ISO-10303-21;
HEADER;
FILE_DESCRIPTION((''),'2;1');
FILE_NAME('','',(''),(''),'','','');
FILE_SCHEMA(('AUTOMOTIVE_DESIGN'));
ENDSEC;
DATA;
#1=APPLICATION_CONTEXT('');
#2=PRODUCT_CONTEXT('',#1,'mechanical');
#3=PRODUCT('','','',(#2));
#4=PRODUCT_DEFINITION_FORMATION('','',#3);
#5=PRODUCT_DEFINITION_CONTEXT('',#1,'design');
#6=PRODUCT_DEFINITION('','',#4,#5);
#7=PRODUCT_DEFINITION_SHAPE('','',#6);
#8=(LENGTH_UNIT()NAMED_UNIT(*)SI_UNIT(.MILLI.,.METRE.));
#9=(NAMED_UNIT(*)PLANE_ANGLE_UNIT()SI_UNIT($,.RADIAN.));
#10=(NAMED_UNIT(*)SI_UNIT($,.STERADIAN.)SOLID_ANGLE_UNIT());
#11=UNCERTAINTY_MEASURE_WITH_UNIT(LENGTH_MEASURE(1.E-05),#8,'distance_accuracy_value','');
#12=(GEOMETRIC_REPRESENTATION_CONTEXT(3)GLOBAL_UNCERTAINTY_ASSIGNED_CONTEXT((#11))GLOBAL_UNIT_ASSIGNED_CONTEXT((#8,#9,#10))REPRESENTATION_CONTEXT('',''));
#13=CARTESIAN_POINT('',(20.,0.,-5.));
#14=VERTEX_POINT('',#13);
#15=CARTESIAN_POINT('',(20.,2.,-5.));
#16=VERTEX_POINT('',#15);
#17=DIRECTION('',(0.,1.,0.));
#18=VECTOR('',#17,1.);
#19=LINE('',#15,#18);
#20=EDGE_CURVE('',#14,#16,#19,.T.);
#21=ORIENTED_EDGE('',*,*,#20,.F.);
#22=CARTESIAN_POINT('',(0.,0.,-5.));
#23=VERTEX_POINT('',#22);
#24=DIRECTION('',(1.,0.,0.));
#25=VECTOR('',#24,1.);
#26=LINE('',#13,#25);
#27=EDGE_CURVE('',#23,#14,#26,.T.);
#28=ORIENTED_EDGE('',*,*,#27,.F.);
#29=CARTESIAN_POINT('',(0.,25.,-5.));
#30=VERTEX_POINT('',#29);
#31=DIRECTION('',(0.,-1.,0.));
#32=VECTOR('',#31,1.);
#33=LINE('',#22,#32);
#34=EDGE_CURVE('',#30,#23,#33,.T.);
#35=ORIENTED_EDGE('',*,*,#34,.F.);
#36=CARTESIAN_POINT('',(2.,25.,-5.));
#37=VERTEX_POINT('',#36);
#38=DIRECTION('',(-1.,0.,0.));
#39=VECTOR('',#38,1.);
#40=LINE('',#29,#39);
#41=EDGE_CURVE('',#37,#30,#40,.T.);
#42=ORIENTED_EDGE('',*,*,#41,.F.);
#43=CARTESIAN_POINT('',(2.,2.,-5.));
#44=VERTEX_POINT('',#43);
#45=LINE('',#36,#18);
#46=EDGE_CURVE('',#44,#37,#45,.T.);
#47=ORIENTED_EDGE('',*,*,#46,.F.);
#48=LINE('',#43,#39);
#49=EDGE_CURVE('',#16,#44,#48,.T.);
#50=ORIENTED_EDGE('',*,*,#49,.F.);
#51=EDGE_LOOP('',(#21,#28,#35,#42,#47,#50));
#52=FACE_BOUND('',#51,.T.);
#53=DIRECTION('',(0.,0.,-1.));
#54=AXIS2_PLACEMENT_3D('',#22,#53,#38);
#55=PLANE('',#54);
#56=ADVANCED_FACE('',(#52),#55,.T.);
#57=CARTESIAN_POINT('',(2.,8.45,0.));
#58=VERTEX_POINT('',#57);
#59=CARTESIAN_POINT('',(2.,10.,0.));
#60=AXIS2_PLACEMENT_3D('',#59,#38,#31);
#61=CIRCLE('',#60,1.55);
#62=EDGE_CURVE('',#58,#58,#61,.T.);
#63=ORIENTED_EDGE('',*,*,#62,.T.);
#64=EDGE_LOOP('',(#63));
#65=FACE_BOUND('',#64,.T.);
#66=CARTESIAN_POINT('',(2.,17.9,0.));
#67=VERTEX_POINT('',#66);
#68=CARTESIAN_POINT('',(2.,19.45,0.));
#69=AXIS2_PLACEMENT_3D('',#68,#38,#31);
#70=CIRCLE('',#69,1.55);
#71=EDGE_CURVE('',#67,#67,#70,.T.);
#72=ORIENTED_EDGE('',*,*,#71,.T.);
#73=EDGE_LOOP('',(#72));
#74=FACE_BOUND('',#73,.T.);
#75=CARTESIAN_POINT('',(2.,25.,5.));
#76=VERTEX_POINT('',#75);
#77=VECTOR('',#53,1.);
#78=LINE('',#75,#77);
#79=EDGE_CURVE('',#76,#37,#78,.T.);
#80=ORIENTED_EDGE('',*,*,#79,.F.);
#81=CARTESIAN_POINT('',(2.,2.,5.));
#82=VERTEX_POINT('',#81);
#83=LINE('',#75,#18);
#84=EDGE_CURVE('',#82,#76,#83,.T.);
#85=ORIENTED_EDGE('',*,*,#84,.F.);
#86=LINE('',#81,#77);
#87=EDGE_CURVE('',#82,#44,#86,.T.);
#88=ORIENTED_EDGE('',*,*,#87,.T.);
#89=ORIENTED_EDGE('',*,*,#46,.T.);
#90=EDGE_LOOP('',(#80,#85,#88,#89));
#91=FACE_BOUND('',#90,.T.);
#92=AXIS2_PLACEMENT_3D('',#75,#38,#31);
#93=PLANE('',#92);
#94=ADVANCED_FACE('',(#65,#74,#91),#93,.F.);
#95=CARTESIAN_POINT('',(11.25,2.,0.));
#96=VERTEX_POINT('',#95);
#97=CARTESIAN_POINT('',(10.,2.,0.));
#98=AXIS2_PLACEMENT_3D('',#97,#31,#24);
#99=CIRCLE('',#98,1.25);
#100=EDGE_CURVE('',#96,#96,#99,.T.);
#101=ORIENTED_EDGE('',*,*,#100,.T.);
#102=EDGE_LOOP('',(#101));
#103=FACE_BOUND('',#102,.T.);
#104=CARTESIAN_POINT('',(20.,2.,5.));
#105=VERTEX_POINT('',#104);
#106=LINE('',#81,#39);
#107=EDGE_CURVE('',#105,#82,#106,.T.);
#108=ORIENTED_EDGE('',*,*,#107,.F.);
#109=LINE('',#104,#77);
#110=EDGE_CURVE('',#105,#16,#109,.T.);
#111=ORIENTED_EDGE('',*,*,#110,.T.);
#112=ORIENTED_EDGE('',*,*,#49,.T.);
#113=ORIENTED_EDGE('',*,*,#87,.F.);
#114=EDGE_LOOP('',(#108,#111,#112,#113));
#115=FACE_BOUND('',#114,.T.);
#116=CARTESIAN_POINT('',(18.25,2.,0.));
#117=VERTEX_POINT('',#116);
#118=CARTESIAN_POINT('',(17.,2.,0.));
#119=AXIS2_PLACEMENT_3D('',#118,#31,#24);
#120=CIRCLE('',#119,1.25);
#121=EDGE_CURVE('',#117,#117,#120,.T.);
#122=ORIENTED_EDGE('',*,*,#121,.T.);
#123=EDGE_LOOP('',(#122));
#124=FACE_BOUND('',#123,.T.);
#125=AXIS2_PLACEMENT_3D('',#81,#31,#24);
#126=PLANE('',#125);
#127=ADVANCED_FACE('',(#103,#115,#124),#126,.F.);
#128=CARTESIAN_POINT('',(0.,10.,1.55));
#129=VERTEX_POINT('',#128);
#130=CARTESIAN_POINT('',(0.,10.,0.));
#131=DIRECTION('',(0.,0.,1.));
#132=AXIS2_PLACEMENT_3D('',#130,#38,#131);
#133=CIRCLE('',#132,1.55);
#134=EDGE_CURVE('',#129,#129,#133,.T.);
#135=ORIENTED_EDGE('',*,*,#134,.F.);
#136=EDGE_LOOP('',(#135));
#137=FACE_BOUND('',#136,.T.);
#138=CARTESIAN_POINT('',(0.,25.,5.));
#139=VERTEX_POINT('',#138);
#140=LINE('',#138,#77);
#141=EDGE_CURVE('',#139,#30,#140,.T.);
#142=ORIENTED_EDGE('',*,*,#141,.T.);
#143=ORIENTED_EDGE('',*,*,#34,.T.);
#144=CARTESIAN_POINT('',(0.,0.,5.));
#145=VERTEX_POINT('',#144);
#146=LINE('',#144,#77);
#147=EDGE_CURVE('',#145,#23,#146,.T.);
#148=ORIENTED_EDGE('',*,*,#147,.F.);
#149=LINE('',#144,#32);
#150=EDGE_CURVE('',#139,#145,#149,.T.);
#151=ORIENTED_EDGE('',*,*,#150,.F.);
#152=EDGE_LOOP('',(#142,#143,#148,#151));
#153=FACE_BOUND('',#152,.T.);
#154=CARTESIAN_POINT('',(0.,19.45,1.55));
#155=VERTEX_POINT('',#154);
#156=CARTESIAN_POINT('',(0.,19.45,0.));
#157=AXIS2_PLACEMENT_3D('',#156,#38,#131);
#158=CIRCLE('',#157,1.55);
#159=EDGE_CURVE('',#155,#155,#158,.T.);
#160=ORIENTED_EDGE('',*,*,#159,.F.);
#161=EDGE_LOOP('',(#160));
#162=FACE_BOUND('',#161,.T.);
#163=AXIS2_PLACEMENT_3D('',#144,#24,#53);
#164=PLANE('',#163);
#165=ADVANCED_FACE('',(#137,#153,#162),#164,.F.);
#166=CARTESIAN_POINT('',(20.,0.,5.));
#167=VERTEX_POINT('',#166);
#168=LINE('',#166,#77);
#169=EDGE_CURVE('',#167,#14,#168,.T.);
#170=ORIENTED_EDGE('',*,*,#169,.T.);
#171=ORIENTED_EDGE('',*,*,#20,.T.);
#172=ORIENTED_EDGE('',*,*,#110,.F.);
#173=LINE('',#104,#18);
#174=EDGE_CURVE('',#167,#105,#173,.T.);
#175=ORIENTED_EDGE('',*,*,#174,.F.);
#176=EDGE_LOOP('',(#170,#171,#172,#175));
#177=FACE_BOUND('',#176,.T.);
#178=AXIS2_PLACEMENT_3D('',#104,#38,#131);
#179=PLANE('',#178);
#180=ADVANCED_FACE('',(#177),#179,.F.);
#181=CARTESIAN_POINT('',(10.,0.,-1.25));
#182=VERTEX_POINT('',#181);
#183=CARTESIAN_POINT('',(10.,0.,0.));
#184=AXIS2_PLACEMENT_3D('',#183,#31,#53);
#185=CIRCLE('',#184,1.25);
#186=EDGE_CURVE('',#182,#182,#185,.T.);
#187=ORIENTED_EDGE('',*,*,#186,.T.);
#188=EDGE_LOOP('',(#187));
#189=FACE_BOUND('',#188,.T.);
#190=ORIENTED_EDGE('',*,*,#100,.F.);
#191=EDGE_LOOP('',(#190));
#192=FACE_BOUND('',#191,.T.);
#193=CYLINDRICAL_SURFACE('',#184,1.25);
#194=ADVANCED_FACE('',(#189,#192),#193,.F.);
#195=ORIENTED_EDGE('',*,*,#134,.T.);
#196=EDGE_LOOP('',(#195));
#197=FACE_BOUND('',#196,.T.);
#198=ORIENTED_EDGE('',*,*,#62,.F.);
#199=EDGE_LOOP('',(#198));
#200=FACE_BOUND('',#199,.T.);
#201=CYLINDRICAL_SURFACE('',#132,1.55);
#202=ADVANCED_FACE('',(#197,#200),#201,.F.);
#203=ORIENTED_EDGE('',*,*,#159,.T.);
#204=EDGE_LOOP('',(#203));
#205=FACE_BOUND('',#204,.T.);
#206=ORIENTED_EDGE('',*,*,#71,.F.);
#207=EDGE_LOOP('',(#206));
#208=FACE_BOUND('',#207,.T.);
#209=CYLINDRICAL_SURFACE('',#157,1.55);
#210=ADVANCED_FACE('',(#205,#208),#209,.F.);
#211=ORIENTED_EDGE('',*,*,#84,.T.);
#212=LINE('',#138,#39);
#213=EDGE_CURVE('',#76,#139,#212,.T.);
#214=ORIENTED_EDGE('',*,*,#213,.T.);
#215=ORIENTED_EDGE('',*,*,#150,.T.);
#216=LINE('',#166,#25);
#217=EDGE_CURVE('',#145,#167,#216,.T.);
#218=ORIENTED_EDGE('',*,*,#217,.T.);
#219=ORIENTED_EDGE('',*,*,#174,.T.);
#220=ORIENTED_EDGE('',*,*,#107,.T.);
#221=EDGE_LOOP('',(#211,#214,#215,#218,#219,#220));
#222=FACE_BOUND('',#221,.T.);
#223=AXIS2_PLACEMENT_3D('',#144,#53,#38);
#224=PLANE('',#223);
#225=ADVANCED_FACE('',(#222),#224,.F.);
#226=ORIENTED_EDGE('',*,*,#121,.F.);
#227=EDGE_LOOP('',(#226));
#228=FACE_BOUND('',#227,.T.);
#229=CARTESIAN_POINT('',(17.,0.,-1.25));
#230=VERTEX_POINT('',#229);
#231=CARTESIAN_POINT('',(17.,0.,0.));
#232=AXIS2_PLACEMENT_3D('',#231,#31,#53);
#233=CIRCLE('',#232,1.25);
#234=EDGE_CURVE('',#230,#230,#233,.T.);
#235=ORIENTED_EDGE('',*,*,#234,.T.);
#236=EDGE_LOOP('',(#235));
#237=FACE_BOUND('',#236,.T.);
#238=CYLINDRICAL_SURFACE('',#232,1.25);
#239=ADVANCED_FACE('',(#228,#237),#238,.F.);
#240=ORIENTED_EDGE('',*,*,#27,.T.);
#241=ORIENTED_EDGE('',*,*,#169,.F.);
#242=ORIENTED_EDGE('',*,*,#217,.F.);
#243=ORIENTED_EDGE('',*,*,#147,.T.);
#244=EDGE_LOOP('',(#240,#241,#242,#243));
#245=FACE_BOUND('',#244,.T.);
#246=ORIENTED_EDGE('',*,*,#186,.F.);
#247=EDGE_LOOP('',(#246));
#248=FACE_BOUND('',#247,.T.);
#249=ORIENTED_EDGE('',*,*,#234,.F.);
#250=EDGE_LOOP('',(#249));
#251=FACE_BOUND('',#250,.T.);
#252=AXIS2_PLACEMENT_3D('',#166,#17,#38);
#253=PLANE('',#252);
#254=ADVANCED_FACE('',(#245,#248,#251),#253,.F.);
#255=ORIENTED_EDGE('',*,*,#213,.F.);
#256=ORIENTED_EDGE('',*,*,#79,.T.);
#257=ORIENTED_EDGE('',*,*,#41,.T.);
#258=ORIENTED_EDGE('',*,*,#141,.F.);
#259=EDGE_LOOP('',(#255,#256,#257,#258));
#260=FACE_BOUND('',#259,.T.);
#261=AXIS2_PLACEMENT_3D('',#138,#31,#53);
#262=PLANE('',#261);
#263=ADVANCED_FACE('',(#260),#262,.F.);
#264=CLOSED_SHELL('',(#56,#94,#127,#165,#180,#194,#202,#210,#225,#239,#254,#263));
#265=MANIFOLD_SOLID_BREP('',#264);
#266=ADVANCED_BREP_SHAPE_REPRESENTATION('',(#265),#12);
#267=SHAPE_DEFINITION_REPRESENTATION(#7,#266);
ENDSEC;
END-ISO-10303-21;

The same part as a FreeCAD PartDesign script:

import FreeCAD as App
import Part
import Sketcher
from FreeCAD import Vector


def add_polygon(sketch, points):
    """Adds a closed chain of lines whose ends are joined by coincident constraints."""
    first, n = sketch.GeometryCount, len(points)
    for a, b in zip(points, points[1:] + points[:1]):
        sketch.addGeometry(Part.LineSegment(App.Vector(*a, 0), App.Vector(*b, 0)), False)
    for i in range(n):
        sketch.addConstraint(Sketcher.Constraint("Coincident", first + i, 2, first + (i + 1) % n, 1))

doc = App.newDocument("Part")
params = doc.addObject("Spreadsheet::Sheet", "Params")
for row, (alias, value) in enumerate([
    ("sketch1_width", "20 mm"),
    ("sketch1_width2", "18 mm"),
    ("sketch1_height", "25 mm"),
    ("pad1_length", "10 mm"),
    ("sketch2_diameter", "2.5 mm"),
    ("hole_diameter", "2.5 mm"),
    ("sketch3_diameter", "3.1 mm"),
    ("hole2_diameter", "3.1 mm"),
], start=1):
    params.set(f"A{row}", alias)
    params.set(f"B{row}", "=" + value)
    params.setAlias(f"B{row}", alias)

body = doc.addObject("PartDesign::Body", "Body")

# Sketch on XY plane
sketch1 = doc.addObject("Sketcher::SketchObject", "Sketch")
body.addObject(sketch1)
sketch1.AttachmentSupport = (doc.XY_Plane, [""])
sketch1.MapMode = "FlatFace"
add_polygon(sketch1, [(0, 25), (0, 0), (20, 0), (20, 2), (2, 2), (2, 25)])  # lines 0-5
sketch1.addConstraint(Sketcher.Constraint("Vertical", 0))
sketch1.addConstraint(Sketcher.Constraint("Horizontal", 1))
sketch1.addConstraint(Sketcher.Constraint("Vertical", 2))
sketch1.addConstraint(Sketcher.Constraint("Horizontal", 3))
sketch1.addConstraint(Sketcher.Constraint("Vertical", 4))
sketch1.addConstraint(Sketcher.Constraint("Horizontal", 5))
sketch1.addConstraint(Sketcher.Constraint("Coincident", 0, 2, -1, 1))
sketch1.addConstraint(Sketcher.Constraint("Equal", 5, 2))
sketch1.addConstraint(Sketcher.Constraint("DistanceX", 1, 1, 1, 2, 20.0))
sketch1.addConstraint(Sketcher.Constraint("DistanceX", 3, 2, 3, 1, 18.0))
sketch1.addConstraint(Sketcher.Constraint("DistanceY", 0, 2, 0, 1, 25.0))
sketch1.setExpression("Constraints[14]", "Params.sketch1_width")
sketch1.setExpression("Constraints[15]", "Params.sketch1_width2")
sketch1.setExpression("Constraints[16]", "Params.sketch1_height")
pad1 = doc.addObject("PartDesign::Pad", "Pad")
body.addObject(pad1)
pad1.Profile = sketch1
pad1.setExpression("Length", "Params.pad1_length")
pad1.Midplane = True

# Sketch on XZ plane
sketch2 = doc.addObject("Sketcher::SketchObject", "Sketch001")
body.addObject(sketch2)
sketch2.AttachmentSupport = (doc.XZ_Plane, [""])
sketch2.MapMode = "FlatFace"
sketch2.addGeometry(Part.Circle(Vector(10, 0, 0), Vector(0, 0, 1), 1.2), False)
sketch2.addGeometry(Part.Circle(Vector(17, 0, 0), Vector(0, 0, 1), 1.2), False)
sketch2.addConstraint(Sketcher.Constraint("Equal", 0, 1))
sketch2.addConstraint(Sketcher.Constraint("PointOnObject", 0, 3, -1))
sketch2.addConstraint(Sketcher.Constraint("PointOnObject", 1, 3, -1))
sketch2.addConstraint(Sketcher.Constraint("Diameter", 0, 2.5))
sketch2.addConstraint(Sketcher.Constraint("DistanceX", -1, 1, 0, 3, 10.0))
sketch2.addConstraint(Sketcher.Constraint("DistanceX", -1, 1, 1, 3, 17.0))
sketch2.setExpression("Constraints[3]", "Params.sketch2_diameter")
doc.recompute()
hole = doc.addObject("PartDesign::Hole", "Hole")
body.addObject(hole)
hole.Profile = sketch2
hole.ThreadType = "None"
hole.setExpression("Diameter", "Params.hole_diameter")
hole.DepthType = "ThroughAll"

# Sketch on YZ plane
sketch3 = doc.addObject("Sketcher::SketchObject", "Sketch002")
body.addObject(sketch3)
sketch3.AttachmentSupport = (doc.YZ_Plane, [""])
sketch3.MapMode = "FlatFace"
sketch3.addGeometry(Part.Circle(Vector(10, 0, 0), Vector(0, 0, 1), 1.6), False)
sketch3.addGeometry(Part.Circle(Vector(19.4, 0, 0), Vector(0, 0, 1), 1.6), False)
sketch3.addConstraint(Sketcher.Constraint("Equal", 0, 1))
sketch3.addConstraint(Sketcher.Constraint("PointOnObject", 0, 3, -1))
sketch3.addConstraint(Sketcher.Constraint("PointOnObject", 1, 3, -1))
sketch3.addConstraint(Sketcher.Constraint("Diameter", 0, 3.1))
sketch3.addConstraint(Sketcher.Constraint("DistanceX", -1, 1, 0, 3, 10.0))
sketch3.addConstraint(Sketcher.Constraint("DistanceX", -1, 1, 1, 3, 19.45))
sketch3.setExpression("Constraints[3]", "Params.sketch3_diameter")
doc.recompute()
hole2 = doc.addObject("PartDesign::Hole", "Hole001")
body.addObject(hole2)
hole2.Profile = sketch3
hole2.ThreadType = "None"
hole2.setExpression("Diameter", "Params.hole2_diameter")
hole2.DepthType = "ThroughAll"
hole2.Reversed = True

doc.recompute()
